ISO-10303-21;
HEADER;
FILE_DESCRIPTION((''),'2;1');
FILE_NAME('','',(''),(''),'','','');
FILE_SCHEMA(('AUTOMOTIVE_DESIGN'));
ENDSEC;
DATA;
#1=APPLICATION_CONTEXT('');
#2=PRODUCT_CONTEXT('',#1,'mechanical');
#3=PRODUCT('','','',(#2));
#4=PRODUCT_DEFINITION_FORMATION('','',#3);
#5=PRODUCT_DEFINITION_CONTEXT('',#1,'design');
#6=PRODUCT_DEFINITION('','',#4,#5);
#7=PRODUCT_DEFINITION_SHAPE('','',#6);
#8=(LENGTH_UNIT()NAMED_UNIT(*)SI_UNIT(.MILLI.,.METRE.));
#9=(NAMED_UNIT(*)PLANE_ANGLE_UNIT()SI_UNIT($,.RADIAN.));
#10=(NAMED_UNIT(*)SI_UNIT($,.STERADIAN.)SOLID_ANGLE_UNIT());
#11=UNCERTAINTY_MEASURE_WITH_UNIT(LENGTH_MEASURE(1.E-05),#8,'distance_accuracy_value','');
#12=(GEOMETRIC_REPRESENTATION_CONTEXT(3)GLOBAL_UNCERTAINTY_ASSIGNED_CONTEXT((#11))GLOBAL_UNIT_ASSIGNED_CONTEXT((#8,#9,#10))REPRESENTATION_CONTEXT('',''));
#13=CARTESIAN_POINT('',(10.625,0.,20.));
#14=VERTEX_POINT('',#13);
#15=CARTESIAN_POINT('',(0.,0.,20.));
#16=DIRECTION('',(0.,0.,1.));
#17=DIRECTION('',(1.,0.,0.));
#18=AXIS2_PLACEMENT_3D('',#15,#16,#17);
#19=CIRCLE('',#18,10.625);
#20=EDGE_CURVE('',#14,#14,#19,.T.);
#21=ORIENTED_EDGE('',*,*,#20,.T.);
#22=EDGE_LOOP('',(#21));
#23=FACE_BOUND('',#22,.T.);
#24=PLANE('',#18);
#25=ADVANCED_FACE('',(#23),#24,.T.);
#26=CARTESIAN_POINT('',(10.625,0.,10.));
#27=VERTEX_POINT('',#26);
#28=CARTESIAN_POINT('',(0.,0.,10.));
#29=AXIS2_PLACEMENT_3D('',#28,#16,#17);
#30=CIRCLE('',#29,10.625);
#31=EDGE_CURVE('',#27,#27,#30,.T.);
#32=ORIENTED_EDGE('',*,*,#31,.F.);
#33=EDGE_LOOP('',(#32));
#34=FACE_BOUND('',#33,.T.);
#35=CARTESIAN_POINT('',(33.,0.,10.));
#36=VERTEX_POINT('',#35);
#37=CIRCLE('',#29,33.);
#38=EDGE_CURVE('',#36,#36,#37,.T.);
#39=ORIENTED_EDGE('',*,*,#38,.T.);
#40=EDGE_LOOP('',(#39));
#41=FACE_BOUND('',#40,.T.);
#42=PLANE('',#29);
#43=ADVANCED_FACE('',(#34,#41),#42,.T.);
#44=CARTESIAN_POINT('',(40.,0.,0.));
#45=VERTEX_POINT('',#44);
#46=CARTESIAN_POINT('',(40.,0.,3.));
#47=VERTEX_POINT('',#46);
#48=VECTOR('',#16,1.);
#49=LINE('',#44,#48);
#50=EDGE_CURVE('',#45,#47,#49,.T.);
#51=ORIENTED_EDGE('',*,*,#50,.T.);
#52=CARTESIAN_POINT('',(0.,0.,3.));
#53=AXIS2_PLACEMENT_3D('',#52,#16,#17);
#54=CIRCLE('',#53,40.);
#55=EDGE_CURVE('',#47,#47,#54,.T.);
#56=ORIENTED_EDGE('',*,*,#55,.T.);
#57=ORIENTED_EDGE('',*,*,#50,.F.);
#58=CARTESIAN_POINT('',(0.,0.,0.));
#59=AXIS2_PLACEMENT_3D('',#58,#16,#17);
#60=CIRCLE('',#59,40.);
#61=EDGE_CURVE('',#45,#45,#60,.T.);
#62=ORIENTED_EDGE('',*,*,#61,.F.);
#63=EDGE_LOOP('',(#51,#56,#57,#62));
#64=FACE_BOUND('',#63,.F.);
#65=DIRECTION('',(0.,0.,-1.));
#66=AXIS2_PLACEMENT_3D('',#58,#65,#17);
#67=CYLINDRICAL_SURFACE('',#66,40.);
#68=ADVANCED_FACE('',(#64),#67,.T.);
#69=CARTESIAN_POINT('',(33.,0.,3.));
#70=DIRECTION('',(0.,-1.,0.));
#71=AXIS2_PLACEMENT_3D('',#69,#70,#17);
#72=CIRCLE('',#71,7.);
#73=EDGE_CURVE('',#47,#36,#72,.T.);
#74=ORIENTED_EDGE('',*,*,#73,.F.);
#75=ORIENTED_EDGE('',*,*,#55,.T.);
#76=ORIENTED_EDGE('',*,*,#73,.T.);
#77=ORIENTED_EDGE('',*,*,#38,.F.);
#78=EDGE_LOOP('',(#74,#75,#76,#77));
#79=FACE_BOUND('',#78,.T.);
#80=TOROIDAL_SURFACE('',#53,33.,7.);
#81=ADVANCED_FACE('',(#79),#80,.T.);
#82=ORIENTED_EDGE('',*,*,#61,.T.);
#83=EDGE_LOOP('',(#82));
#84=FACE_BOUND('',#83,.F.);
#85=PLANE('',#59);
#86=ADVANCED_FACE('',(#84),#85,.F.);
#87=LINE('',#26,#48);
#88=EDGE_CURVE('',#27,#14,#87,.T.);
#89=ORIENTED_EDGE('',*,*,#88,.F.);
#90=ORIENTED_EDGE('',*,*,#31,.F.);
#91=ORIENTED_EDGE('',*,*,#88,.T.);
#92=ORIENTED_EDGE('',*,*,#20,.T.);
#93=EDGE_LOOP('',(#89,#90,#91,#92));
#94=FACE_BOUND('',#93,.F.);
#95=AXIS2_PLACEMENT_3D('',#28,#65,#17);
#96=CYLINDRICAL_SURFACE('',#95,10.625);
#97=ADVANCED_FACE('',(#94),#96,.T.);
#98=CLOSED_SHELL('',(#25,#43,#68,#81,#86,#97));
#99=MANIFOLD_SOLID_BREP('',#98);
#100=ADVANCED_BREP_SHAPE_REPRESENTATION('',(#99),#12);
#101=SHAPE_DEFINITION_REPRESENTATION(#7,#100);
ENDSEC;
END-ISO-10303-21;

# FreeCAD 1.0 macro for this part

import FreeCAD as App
import Part
import Sketcher


def edges_at(feature, points):
    """Names of the edges that pass closest to the given points."""
    edges = feature.Shape.Edges
    near = lambda p: min(range(len(edges)), key=lambda i: edges[i].distToShape(Part.Vertex(*p))[0])
    return sorted({f"Edge{near(p) + 1}" for p in points})

doc = App.newDocument("Part")
body = doc.addObject("PartDesign::Body", "Body")

sketch1 = body.newObject("Sketcher::SketchObject", "Sketch")
sketch1.AttachmentSupport = (doc.getObject("XY_Plane"), [""])
sketch1.MapMode = "FlatFace"
sketch1.addGeometry(Part.Circle(App.Vector(0, 0, 0), App.Vector(0, 0, 1), 40), False)
sketch1.addConstraint([
    Sketcher.Constraint("Coincident", 0, 3, -1, 1),
    Sketcher.Constraint("Diameter", 0, 80.0),
])
pad1 = body.newObject("PartDesign::Pad", "Pad")
pad1.Profile = sketch1
pad1.Length = 10
doc.recompute()

fillet = body.newObject("PartDesign::Fillet", "Fillet")
fillet.Base = (pad1, edges_at(pad1, [(-40, 0, 10)]))
fillet.Radius = 7

sketch2 = body.newObject("Sketcher::SketchObject", "Sketch001")
sketch2.AttachmentSupport = (doc.getObject("XY_Plane"), [""])
sketch2.MapMode = "FlatFace"
sketch2.AttachmentOffset = App.Placement(App.Vector(0, 0, 10), App.Rotation())
sketch2.addGeometry(Part.Circle(App.Vector(0, 0, 0), App.Vector(0, 0, 1), 11), False)
sketch2.addConstraint([
    Sketcher.Constraint("Coincident", 0, 3, -1, 1),
    Sketcher.Constraint("Diameter", 0, 21.25),
])
pad2 = body.newObject("PartDesign::Pad", "Pad001")
pad2.Profile = sketch2
pad2.Length = 10

doc.recompute()
